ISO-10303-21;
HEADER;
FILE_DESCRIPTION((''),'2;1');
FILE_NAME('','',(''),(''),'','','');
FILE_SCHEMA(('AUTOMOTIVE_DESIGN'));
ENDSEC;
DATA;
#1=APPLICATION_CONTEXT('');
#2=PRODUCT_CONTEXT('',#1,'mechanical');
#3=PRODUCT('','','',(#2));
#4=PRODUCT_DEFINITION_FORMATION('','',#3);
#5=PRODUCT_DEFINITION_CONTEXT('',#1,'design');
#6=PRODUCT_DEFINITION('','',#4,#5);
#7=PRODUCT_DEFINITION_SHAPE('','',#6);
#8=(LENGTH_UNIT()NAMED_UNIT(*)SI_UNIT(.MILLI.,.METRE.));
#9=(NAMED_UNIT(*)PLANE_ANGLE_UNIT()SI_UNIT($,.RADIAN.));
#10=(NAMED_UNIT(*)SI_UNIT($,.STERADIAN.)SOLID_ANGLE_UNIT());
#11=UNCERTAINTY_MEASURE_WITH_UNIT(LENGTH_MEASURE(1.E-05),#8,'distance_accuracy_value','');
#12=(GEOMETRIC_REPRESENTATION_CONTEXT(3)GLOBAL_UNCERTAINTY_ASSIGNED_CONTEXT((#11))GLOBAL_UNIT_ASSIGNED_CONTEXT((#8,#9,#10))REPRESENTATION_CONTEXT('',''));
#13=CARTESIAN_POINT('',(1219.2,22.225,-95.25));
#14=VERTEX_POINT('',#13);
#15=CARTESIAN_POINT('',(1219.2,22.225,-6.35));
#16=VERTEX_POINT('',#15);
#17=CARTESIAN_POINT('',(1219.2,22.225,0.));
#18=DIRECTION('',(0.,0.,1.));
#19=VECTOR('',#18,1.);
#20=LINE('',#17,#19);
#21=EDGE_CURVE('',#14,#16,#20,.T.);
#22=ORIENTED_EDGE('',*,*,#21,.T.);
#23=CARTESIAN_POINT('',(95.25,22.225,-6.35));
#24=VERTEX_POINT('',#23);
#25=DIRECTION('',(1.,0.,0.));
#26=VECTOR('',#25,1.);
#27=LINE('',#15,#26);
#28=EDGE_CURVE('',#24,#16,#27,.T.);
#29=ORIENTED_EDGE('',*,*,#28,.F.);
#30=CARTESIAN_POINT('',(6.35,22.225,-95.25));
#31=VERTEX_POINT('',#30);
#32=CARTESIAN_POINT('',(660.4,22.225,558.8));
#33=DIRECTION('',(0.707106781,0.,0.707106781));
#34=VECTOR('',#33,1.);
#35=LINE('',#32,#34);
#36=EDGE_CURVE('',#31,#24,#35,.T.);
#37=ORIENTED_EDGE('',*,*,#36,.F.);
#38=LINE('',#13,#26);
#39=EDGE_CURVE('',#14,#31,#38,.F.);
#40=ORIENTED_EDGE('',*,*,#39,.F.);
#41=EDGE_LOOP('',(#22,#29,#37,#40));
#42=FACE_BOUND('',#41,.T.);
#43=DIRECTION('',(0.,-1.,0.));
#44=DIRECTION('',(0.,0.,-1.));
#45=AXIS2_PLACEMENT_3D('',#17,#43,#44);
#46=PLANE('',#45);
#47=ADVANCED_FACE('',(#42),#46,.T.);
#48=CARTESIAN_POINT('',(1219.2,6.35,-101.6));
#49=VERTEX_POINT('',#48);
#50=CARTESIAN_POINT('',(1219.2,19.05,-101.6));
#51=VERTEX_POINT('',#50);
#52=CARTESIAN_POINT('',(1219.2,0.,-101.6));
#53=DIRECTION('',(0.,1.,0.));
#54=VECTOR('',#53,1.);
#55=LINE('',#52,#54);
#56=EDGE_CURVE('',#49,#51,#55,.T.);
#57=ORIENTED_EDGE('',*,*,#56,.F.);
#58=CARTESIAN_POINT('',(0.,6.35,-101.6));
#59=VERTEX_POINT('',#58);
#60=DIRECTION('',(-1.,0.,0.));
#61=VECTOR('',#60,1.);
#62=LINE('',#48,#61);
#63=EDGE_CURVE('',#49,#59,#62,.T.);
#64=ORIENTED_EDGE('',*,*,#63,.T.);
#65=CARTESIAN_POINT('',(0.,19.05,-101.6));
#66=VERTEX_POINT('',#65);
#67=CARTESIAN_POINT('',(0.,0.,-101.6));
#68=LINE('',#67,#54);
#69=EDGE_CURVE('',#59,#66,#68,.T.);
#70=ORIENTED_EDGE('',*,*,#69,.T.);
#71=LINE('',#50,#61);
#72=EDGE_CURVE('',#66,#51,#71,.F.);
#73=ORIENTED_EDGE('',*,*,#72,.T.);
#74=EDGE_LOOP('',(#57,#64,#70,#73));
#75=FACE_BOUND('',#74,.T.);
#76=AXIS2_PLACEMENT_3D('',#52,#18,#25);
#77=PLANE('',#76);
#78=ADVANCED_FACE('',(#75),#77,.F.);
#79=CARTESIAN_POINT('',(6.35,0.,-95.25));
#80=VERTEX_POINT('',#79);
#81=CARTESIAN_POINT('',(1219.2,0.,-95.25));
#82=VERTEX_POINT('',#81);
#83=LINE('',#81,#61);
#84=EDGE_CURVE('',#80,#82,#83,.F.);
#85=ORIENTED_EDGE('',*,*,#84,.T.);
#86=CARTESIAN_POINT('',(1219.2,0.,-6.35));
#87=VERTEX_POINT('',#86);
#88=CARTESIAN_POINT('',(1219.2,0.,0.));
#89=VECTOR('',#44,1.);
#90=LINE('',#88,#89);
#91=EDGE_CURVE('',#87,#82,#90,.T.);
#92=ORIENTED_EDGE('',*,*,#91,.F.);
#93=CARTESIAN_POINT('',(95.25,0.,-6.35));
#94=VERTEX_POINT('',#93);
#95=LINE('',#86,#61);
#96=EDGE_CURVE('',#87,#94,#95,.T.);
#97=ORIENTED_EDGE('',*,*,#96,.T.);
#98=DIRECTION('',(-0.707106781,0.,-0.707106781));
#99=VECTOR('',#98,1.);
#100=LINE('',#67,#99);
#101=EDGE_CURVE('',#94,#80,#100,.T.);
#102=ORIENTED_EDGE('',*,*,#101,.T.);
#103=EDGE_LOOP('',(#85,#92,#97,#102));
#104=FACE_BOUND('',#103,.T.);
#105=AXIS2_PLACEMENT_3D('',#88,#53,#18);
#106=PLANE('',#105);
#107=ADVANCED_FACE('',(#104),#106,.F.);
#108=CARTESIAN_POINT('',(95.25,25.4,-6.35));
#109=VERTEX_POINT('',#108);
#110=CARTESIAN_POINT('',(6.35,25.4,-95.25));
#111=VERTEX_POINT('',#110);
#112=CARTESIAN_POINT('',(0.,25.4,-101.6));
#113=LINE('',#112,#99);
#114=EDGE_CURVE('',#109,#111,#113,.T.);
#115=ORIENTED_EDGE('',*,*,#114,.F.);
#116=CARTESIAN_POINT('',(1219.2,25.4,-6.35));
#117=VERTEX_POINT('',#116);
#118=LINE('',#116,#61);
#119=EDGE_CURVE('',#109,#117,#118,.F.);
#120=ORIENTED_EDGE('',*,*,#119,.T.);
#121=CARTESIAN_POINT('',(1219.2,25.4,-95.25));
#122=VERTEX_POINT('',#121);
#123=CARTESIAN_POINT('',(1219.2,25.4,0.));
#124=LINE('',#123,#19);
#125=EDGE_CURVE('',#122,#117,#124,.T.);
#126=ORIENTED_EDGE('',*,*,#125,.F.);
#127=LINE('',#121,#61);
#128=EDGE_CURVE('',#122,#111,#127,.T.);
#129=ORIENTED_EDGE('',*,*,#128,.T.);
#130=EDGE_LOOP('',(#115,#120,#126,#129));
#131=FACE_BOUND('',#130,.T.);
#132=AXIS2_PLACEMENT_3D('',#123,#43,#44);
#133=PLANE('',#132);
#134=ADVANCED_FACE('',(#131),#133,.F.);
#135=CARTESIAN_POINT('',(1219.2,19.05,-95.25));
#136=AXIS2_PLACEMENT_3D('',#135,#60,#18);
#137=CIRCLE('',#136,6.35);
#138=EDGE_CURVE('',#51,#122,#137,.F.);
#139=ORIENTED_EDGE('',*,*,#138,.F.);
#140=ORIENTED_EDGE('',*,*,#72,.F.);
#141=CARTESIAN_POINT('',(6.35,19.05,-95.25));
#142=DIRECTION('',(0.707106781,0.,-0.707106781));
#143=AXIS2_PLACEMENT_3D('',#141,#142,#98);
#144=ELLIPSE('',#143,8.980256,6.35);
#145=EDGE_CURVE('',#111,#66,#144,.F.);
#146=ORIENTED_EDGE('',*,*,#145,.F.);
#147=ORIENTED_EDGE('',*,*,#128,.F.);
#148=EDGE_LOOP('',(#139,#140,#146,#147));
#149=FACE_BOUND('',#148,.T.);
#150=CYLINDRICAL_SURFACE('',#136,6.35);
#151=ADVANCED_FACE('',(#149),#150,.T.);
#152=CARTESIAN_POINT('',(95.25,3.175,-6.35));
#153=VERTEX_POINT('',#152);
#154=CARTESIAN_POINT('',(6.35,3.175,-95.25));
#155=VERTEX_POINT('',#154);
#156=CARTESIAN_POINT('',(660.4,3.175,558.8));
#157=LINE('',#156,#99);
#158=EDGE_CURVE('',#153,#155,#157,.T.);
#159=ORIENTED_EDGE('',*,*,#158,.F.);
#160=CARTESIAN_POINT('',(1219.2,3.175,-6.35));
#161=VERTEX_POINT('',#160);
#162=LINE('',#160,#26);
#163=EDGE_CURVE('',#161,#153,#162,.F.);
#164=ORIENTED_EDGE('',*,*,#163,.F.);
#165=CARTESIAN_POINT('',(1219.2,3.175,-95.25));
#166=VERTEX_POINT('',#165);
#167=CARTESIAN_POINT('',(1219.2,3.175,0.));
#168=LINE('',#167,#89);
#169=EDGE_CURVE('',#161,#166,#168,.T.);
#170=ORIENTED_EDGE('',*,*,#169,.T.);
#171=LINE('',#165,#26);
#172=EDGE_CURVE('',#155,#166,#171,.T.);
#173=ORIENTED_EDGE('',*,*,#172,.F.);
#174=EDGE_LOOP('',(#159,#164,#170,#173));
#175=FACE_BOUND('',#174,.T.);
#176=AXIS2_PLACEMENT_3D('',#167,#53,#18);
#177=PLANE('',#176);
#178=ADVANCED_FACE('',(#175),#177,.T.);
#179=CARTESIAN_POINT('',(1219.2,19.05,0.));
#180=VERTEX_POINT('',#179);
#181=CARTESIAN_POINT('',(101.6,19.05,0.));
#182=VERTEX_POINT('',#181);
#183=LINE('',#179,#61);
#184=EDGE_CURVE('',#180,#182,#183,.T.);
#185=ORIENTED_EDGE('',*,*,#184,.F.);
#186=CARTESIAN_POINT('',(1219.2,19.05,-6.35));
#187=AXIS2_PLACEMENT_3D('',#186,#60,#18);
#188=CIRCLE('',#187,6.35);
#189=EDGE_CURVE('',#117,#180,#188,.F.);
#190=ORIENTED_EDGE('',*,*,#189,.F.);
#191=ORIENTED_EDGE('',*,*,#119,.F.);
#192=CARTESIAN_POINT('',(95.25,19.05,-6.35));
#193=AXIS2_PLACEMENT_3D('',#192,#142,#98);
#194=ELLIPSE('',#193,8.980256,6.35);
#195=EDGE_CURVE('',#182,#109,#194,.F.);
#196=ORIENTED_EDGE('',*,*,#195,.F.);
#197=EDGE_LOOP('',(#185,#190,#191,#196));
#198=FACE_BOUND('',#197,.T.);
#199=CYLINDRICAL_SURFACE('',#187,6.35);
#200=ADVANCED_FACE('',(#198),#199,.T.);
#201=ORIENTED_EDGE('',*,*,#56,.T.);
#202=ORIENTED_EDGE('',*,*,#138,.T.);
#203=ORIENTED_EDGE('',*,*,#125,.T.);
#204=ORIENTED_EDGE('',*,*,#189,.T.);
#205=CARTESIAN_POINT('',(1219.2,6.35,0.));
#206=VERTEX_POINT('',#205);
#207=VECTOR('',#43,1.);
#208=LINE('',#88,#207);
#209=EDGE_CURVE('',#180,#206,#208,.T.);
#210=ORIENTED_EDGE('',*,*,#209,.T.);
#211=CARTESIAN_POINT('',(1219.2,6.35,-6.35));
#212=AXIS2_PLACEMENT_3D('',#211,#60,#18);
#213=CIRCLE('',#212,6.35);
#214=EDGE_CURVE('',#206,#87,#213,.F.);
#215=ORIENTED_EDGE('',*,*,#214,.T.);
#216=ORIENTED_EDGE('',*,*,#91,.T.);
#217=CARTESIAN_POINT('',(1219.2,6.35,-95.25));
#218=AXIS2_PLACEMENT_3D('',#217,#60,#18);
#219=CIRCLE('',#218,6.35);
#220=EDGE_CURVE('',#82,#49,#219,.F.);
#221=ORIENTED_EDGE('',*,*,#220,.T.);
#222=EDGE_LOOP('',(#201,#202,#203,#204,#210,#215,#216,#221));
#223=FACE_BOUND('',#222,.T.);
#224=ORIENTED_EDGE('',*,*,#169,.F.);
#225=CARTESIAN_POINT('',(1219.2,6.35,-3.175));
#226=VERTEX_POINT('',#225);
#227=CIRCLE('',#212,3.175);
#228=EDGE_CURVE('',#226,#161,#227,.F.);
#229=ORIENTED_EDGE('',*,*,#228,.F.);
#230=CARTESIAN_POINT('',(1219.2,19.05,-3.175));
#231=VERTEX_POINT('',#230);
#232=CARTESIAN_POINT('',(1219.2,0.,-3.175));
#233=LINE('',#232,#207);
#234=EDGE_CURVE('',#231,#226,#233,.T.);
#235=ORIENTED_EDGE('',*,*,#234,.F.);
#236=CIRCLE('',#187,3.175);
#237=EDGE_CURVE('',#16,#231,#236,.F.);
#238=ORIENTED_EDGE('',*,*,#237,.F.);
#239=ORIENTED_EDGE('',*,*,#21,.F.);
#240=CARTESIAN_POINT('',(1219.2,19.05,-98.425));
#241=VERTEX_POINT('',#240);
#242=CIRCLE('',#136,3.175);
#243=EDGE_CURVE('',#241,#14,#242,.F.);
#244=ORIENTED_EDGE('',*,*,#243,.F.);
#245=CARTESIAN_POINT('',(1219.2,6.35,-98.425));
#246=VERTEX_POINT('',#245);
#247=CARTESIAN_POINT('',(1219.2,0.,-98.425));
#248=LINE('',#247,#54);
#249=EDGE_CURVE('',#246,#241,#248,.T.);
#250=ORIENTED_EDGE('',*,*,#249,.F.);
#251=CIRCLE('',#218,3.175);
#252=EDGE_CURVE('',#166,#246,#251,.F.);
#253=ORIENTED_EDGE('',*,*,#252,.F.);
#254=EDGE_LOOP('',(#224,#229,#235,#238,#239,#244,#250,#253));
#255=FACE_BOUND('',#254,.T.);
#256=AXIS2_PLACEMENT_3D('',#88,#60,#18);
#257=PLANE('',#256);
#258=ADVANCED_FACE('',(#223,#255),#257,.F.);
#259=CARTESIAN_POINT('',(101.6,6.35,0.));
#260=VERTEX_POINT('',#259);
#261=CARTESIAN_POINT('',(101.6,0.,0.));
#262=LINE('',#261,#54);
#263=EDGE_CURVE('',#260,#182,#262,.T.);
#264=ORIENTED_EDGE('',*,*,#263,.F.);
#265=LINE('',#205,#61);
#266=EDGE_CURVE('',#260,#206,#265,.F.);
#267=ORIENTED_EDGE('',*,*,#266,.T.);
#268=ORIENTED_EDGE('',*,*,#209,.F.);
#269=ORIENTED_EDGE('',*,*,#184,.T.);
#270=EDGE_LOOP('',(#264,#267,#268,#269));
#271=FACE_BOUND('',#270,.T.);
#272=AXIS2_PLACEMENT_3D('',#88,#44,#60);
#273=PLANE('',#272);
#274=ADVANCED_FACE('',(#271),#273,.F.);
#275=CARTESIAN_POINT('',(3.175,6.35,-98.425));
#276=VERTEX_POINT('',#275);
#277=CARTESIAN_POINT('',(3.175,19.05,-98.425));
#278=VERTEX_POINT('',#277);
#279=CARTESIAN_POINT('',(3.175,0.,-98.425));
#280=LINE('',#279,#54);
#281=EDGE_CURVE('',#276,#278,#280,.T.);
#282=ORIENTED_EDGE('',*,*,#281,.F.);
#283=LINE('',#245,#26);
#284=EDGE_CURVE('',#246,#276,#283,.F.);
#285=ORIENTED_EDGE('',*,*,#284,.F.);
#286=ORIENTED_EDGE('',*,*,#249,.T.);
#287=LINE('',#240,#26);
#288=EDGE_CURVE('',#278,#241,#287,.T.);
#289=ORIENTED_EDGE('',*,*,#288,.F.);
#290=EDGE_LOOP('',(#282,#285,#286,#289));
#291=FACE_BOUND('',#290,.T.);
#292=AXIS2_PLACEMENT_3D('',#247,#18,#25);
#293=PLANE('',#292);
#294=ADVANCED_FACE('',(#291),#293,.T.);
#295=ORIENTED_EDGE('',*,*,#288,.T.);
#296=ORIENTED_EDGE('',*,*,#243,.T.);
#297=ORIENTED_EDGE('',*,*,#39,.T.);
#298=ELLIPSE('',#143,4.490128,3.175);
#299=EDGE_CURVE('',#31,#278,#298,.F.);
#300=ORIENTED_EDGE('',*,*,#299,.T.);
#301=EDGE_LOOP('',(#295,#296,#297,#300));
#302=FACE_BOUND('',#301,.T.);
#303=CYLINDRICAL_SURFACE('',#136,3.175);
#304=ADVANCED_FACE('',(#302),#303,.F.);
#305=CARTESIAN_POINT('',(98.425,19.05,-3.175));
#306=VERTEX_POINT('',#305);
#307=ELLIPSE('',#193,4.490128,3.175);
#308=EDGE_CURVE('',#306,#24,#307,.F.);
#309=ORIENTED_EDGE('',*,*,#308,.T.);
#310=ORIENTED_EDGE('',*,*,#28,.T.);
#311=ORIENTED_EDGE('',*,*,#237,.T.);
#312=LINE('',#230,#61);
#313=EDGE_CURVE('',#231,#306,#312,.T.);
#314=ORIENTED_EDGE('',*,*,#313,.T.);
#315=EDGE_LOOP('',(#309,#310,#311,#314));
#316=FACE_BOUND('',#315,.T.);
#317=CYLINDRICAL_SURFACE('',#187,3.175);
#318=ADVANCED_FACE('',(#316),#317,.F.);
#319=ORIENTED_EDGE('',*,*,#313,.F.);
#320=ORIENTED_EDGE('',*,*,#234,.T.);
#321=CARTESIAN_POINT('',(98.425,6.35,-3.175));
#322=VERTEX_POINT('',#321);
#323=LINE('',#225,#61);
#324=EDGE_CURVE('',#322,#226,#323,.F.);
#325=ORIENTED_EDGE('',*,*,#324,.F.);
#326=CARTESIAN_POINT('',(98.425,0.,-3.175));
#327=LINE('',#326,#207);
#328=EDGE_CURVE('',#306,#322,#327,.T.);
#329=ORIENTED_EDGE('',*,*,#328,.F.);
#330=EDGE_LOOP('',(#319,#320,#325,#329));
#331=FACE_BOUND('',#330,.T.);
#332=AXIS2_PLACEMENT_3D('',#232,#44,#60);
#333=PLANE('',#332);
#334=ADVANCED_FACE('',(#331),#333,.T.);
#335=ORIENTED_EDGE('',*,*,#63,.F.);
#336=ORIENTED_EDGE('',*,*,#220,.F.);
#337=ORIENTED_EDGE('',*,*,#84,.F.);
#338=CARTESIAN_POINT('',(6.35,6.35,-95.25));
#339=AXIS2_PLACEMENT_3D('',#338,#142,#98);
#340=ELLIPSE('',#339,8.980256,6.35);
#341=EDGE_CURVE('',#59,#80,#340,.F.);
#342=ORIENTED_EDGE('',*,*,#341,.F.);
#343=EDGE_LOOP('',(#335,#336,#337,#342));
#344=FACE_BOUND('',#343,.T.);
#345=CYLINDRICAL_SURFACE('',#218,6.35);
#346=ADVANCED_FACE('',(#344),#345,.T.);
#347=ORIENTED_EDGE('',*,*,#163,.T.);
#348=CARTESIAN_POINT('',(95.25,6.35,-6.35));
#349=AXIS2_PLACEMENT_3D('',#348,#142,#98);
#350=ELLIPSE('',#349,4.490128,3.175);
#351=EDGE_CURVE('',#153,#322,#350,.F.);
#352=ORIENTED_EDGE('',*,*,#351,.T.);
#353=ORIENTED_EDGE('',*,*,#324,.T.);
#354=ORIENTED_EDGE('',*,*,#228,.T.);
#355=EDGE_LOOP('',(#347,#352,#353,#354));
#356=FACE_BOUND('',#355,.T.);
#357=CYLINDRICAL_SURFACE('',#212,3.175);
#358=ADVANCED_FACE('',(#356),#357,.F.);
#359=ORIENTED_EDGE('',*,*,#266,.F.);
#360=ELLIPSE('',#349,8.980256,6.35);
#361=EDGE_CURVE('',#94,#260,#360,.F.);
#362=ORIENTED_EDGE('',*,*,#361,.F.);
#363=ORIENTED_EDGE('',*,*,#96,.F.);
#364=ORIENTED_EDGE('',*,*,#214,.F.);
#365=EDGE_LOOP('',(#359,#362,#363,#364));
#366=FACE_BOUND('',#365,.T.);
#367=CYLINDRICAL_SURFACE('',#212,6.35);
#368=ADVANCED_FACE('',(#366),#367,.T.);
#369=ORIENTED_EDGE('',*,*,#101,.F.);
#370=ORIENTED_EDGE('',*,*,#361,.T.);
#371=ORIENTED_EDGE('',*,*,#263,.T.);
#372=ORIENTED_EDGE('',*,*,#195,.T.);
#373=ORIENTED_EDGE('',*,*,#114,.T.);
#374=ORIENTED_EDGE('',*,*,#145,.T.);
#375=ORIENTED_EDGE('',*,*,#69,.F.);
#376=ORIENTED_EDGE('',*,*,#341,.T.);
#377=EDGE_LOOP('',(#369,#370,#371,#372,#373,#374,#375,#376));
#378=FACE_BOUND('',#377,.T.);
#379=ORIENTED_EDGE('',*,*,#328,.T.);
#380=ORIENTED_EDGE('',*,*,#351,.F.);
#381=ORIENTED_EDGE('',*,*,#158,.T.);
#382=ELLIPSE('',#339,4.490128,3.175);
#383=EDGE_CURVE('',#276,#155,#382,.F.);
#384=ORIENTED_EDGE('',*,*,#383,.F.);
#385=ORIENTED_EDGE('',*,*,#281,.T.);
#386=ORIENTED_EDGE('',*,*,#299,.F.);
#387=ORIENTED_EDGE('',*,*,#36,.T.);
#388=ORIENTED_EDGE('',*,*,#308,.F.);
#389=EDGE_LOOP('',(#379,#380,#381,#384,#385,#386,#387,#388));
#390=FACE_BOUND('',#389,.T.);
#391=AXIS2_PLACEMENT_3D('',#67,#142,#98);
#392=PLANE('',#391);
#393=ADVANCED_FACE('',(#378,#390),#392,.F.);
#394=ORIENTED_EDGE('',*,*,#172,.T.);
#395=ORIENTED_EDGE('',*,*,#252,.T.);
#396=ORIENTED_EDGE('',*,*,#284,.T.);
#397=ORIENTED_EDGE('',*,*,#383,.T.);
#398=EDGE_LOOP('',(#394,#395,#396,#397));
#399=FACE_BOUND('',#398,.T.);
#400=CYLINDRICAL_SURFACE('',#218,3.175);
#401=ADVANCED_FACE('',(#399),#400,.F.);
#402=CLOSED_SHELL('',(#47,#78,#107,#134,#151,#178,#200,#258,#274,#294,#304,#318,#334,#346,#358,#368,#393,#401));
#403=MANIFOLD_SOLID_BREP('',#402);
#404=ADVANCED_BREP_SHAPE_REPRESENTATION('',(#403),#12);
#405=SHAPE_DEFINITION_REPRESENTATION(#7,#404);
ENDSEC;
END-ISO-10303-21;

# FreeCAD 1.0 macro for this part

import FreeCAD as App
import Part
import Sketcher

V = App.Vector
Q = App.Units.Quantity


def edges_at(feature, points):
    """Names of the edges that pass closest to the given points."""
    edges = feature.Shape.Edges
    near = lambda p: min(range(len(edges)), key=lambda i: edges[i].distToShape(Part.Vertex(*p))[0])
    return sorted({f"Edge{near(p) + 1}" for p in points})


def faces_at(feature, points):
    """Names of the faces that lie closest to the given points."""
    faces = feature.Shape.Faces
    near = lambda p: min(range(len(faces)), key=lambda i: faces[i].distToShape(Part.Vertex(*p))[0])
    return sorted({f"Face{near(p) + 1}" for p in points})


def add_polygon(sketch, points):
    """Adds a closed chain of lines whose ends are joined by coincident constraints."""
    first, n = sketch.GeometryCount, len(points)
    for a, b in zip(points, points[1:] + points[:1]):
        sketch.addGeometry(Part.LineSegment(App.Vector(*a, 0), App.Vector(*b, 0)), False)
    for i in range(n):
        sketch.addConstraint(Sketcher.Constraint("Coincident", first + i, 2, first + (i + 1) % n, 1))

doc = App.newDocument("Part")
body = doc.addObject("PartDesign::Body", "Body")

sketch1 = doc.addObject("Sketcher::SketchObject", "Sketch")
body.addObject(sketch1)
sketch1.AttachmentSupport = (doc.YZ_Plane, [""])
sketch1.MapMode = "FlatFace"
add_polygon(sketch1, [(25, 0), (0, 0), (0, -102), (25, -102)])
sketch1.addConstraint(Sketcher.Constraint("Horizontal", 0))
sketch1.addConstraint(Sketcher.Constraint("Vertical", 1))
sketch1.addConstraint(Sketcher.Constraint("Horizontal", 2))
sketch1.addConstraint(Sketcher.Constraint("Vertical", 3))
sketch1.addConstraint(Sketcher.Constraint("Coincident", 0, 2, -1, 1))
sketch1.addConstraint(Sketcher.Constraint("DistanceX", 0, 2, 0, 1, Q("1 in")))
sketch1.addConstraint(Sketcher.Constraint("DistanceY", 1, 2, 1, 1, Q("4 in")))
pad1 = doc.addObject("PartDesign::Pad", "Pad")
body.addObject(pad1)
pad1.Profile = sketch1
pad1.Length = Q("48 in")
doc.recompute()

fillet = doc.addObject("PartDesign::Fillet", "Fillet")
body.addObject(fillet)
fillet.Base = (pad1, edges_at(pad1, [
    (609.6, 25.4, 0),
    (609.6, 25.4, -101.6),
    (609.6, 0, -101.6),
    (609.6, 0, 0),
]))
fillet.Radius = Q("0.25 in")
doc.recompute()

thickness = doc.addObject("PartDesign::Thickness", "Thickness")
body.addObject(thickness)
thickness.Base = (fillet, faces_at(fillet, [(1219.2, 12.7, -50.8), (0, 12.7, -50.8)]))
thickness.Value = Q("0.125 in")
thickness.Reversed = True
thickness.Join = "Intersection"

sketch2 = doc.addObject("Sketcher::SketchObject", "Sketch001")
body.addObject(sketch2)
sketch2.AttachmentSupport = (doc.XZ_Plane, [""])
sketch2.MapMode = "FlatFace"
sketch2.AttachmentOffset = App.Placement(V(0, 0, -1 * 25.4), App.Rotation())
add_polygon(sketch2, [(102, 0), (0, -102), (0, 0)])
sketch2.addConstraint(Sketcher.Constraint("Vertical", 1))
sketch2.addConstraint(Sketcher.Constraint("Horizontal", 2))
sketch2.addConstraint(Sketcher.Constraint("Coincident", 1, 2, -1, 1))
sketch2.addConstraint(Sketcher.Constraint("Equal", 2, 1))
sketch2.addConstraint(Sketcher.Constraint("DistanceX", 2, 1, 2, 2, Q("4 in")))
pocket1 = doc.addObject("PartDesign::Pocket", "Pocket")
body.addObject(pocket1)
pocket1.Profile = sketch2
pocket1.Length = Q("1 in")
pocket1.Reversed = True

doc.recompute()
